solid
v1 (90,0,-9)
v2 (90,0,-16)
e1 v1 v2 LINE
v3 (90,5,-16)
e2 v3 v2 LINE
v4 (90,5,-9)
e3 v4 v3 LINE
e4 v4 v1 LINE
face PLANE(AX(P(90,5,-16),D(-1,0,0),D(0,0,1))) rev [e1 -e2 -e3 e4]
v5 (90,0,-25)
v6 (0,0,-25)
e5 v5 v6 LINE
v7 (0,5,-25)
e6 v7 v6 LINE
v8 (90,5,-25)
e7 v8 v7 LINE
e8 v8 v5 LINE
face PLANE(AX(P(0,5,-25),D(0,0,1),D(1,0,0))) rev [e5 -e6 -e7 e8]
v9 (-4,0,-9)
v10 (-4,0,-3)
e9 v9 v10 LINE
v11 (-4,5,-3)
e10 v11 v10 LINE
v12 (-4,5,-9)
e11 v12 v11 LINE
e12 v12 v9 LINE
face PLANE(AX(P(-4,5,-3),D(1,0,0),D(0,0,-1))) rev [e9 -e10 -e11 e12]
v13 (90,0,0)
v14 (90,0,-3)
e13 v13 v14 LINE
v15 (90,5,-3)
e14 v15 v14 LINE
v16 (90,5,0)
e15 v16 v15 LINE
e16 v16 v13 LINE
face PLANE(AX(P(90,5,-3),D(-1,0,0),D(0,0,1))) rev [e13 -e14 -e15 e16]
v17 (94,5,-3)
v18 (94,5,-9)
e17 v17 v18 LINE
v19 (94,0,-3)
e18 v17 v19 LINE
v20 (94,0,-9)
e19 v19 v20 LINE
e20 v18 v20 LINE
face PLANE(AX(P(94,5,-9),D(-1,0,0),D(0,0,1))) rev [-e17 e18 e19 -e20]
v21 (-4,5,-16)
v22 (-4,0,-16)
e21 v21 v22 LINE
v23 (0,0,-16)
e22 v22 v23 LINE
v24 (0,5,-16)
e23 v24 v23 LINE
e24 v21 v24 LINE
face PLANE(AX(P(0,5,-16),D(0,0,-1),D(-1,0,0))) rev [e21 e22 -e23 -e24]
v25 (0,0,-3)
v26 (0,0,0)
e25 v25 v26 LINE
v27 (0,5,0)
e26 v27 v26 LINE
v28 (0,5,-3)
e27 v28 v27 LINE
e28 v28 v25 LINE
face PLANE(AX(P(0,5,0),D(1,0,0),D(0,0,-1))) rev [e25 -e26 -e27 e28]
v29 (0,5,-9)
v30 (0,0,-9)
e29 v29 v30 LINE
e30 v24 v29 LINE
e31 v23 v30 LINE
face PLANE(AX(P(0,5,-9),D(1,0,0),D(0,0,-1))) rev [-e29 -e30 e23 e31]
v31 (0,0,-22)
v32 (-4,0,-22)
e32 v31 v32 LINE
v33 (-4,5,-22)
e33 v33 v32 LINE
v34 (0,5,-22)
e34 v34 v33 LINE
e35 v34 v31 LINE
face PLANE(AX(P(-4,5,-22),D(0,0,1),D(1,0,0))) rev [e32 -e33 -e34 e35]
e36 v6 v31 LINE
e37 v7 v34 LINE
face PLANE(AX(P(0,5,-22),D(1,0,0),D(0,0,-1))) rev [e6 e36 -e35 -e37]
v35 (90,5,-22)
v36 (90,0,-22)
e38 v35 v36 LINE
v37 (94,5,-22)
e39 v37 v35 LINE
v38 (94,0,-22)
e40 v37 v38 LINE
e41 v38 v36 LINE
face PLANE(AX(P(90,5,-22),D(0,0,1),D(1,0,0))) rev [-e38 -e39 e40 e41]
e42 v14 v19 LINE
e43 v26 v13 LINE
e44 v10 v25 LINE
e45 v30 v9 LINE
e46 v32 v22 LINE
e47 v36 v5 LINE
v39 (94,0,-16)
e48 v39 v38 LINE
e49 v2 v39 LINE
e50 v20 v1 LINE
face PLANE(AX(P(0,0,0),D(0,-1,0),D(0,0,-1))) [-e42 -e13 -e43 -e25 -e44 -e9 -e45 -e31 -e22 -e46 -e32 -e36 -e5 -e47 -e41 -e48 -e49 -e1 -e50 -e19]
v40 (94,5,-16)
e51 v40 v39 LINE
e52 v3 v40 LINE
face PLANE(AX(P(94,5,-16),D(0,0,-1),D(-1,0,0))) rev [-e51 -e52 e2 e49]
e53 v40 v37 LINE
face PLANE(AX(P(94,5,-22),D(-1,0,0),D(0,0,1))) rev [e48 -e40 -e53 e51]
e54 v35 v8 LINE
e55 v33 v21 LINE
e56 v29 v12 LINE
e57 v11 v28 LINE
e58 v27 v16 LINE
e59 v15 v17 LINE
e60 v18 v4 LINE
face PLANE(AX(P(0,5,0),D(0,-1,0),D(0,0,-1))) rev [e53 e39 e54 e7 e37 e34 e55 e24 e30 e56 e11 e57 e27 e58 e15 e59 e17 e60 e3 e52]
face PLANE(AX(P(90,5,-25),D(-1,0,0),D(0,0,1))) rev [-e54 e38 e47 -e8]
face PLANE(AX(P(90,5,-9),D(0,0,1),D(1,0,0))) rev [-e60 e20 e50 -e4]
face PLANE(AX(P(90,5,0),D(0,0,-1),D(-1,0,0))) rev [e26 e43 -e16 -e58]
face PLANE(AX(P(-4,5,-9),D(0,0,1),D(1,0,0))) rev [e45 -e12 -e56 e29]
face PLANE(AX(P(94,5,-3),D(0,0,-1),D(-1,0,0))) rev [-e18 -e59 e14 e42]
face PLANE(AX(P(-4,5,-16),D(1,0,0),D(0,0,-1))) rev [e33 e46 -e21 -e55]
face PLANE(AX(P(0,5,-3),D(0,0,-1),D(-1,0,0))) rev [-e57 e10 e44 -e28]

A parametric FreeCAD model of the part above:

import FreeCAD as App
import Part
import Sketcher


def add_polygon(sketch, points):
    """Adds a closed chain of lines whose ends are joined by coincident constraints."""
    first, n = sketch.GeometryCount, len(points)
    for a, b in zip(points, points[1:] + points[:1]):
        sketch.addGeometry(Part.LineSegment(App.Vector(*a, 0), App.Vector(*b, 0)), False)
    for i in range(n):
        sketch.addConstraint(Sketcher.Constraint("Coincident", first + i, 2, first + (i + 1) % n, 1))

doc = App.newDocument("Part")
body = doc.addObject("PartDesign::Body", "Body")

# Sketch on XZ plane
sketch1 = doc.addObject("Sketcher::SketchObject", "Sketch")
body.addObject(sketch1)
sketch1.AttachmentSupport = (doc.XZ_Plane, [""])
sketch1.MapMode = "FlatFace"
add_polygon(sketch1, [(0, -3), (0, 0), (90, 0), (90, -3), (94, -3), (94, -9), (90, -9), (90, -16), (94, -16), (94, -22), (90, -22), (90, -25), (0, -25), (0, -22), (-4, -22), (-4, -16), (0, -16), (0, -9), (-4, -9), (-4, -3)])  # lines 0-19
sketch1.addConstraint(Sketcher.Constraint("Vertical", 0))
sketch1.addConstraint(Sketcher.Constraint("Horizontal", 1))
sketch1.addConstraint(Sketcher.Constraint("Vertical", 2))
sketch1.addConstraint(Sketcher.Constraint("Horizontal", 3))
sketch1.addConstraint(Sketcher.Constraint("Vertical", 4))
sketch1.addConstraint(Sketcher.Constraint("Horizontal", 5))
sketch1.addConstraint(Sketcher.Constraint("Vertical", 6))
sketch1.addConstraint(Sketcher.Constraint("Horizontal", 7))
sketch1.addConstraint(Sketcher.Constraint("Vertical", 8))
sketch1.addConstraint(Sketcher.Constraint("Horizontal", 9))
sketch1.addConstraint(Sketcher.Constraint("Vertical", 10))
sketch1.addConstraint(Sketcher.Constraint("Horizontal", 11))
sketch1.addConstraint(Sketcher.Constraint("Vertical", 12))
sketch1.addConstraint(Sketcher.Constraint("Horizontal", 13))
sketch1.addConstraint(Sketcher.Constraint("Vertical", 14))
sketch1.addConstraint(Sketcher.Constraint("Horizontal", 15))
sketch1.addConstraint(Sketcher.Constraint("Vertical", 16))
sketch1.addConstraint(Sketcher.Constraint("Horizontal", 17))
sketch1.addConstraint(Sketcher.Constraint("Vertical", 18))
sketch1.addConstraint(Sketcher.Constraint("Horizontal", 19))
sketch1.addConstraint(Sketcher.Constraint("Coincident", 0, 2, -1, 1))
sketch1.addConstraint(Sketcher.Constraint("PointOnObject", 11, 2, -2))
sketch1.addConstraint(Sketcher.Constraint("PointOnObject", 15, 2, -2))
sketch1.addConstraint(Sketcher.Constraint("Horizontal", 9, 2, 12, 2))
sketch1.addConstraint(Sketcher.Constraint("Horizontal", 7, 2, 14, 2))
sketch1.addConstraint(Sketcher.Constraint("Horizontal", 5, 2, 16, 2))
sketch1.addConstraint(Sketcher.Constraint("Horizontal", 3, 2, 18, 2))
sketch1.addConstraint(Sketcher.Constraint("Vertical", 2, 2, 5, 2))
sketch1.addConstraint(Sketcher.Constraint("Vertical", 4, 2, 7, 2))
sketch1.addConstraint(Sketcher.Constraint("Vertical", 6, 2, 9, 2))
sketch1.addConstraint(Sketcher.Constraint("Vertical", 14, 2, 17, 2))
sketch1.addConstraint(Sketcher.Constraint("Equal", 9, 13))
sketch1.addConstraint(Sketcher.Constraint("Equal", 4, 8))
sketch1.addConstraint(Sketcher.Constraint("Equal", 2, 10))
sketch1.addConstraint(Sketcher.Constraint("DistanceX", 1, 1, 1, 2, 90.0))
sketch1.addConstraint(Sketcher.Constraint("DistanceX", 3, 1, 3, 2, 4.0))
sketch1.addConstraint(Sketcher.Constraint("DistanceY", 0, 1, 0, 2, 3.0))
sketch1.addConstraint(Sketcher.Constraint("DistanceY", 4, 2, 4, 1, 6.0))
sketch1.addConstraint(Sketcher.Constraint("DistanceY", 6, 2, 6, 1, 7.0))
pad1 = doc.addObject("PartDesign::Pad", "Pad")
body.addObject(pad1)
pad1.Profile = sketch1
pad1.Length = 5
pad1.Reversed = True

doc.recompute()
